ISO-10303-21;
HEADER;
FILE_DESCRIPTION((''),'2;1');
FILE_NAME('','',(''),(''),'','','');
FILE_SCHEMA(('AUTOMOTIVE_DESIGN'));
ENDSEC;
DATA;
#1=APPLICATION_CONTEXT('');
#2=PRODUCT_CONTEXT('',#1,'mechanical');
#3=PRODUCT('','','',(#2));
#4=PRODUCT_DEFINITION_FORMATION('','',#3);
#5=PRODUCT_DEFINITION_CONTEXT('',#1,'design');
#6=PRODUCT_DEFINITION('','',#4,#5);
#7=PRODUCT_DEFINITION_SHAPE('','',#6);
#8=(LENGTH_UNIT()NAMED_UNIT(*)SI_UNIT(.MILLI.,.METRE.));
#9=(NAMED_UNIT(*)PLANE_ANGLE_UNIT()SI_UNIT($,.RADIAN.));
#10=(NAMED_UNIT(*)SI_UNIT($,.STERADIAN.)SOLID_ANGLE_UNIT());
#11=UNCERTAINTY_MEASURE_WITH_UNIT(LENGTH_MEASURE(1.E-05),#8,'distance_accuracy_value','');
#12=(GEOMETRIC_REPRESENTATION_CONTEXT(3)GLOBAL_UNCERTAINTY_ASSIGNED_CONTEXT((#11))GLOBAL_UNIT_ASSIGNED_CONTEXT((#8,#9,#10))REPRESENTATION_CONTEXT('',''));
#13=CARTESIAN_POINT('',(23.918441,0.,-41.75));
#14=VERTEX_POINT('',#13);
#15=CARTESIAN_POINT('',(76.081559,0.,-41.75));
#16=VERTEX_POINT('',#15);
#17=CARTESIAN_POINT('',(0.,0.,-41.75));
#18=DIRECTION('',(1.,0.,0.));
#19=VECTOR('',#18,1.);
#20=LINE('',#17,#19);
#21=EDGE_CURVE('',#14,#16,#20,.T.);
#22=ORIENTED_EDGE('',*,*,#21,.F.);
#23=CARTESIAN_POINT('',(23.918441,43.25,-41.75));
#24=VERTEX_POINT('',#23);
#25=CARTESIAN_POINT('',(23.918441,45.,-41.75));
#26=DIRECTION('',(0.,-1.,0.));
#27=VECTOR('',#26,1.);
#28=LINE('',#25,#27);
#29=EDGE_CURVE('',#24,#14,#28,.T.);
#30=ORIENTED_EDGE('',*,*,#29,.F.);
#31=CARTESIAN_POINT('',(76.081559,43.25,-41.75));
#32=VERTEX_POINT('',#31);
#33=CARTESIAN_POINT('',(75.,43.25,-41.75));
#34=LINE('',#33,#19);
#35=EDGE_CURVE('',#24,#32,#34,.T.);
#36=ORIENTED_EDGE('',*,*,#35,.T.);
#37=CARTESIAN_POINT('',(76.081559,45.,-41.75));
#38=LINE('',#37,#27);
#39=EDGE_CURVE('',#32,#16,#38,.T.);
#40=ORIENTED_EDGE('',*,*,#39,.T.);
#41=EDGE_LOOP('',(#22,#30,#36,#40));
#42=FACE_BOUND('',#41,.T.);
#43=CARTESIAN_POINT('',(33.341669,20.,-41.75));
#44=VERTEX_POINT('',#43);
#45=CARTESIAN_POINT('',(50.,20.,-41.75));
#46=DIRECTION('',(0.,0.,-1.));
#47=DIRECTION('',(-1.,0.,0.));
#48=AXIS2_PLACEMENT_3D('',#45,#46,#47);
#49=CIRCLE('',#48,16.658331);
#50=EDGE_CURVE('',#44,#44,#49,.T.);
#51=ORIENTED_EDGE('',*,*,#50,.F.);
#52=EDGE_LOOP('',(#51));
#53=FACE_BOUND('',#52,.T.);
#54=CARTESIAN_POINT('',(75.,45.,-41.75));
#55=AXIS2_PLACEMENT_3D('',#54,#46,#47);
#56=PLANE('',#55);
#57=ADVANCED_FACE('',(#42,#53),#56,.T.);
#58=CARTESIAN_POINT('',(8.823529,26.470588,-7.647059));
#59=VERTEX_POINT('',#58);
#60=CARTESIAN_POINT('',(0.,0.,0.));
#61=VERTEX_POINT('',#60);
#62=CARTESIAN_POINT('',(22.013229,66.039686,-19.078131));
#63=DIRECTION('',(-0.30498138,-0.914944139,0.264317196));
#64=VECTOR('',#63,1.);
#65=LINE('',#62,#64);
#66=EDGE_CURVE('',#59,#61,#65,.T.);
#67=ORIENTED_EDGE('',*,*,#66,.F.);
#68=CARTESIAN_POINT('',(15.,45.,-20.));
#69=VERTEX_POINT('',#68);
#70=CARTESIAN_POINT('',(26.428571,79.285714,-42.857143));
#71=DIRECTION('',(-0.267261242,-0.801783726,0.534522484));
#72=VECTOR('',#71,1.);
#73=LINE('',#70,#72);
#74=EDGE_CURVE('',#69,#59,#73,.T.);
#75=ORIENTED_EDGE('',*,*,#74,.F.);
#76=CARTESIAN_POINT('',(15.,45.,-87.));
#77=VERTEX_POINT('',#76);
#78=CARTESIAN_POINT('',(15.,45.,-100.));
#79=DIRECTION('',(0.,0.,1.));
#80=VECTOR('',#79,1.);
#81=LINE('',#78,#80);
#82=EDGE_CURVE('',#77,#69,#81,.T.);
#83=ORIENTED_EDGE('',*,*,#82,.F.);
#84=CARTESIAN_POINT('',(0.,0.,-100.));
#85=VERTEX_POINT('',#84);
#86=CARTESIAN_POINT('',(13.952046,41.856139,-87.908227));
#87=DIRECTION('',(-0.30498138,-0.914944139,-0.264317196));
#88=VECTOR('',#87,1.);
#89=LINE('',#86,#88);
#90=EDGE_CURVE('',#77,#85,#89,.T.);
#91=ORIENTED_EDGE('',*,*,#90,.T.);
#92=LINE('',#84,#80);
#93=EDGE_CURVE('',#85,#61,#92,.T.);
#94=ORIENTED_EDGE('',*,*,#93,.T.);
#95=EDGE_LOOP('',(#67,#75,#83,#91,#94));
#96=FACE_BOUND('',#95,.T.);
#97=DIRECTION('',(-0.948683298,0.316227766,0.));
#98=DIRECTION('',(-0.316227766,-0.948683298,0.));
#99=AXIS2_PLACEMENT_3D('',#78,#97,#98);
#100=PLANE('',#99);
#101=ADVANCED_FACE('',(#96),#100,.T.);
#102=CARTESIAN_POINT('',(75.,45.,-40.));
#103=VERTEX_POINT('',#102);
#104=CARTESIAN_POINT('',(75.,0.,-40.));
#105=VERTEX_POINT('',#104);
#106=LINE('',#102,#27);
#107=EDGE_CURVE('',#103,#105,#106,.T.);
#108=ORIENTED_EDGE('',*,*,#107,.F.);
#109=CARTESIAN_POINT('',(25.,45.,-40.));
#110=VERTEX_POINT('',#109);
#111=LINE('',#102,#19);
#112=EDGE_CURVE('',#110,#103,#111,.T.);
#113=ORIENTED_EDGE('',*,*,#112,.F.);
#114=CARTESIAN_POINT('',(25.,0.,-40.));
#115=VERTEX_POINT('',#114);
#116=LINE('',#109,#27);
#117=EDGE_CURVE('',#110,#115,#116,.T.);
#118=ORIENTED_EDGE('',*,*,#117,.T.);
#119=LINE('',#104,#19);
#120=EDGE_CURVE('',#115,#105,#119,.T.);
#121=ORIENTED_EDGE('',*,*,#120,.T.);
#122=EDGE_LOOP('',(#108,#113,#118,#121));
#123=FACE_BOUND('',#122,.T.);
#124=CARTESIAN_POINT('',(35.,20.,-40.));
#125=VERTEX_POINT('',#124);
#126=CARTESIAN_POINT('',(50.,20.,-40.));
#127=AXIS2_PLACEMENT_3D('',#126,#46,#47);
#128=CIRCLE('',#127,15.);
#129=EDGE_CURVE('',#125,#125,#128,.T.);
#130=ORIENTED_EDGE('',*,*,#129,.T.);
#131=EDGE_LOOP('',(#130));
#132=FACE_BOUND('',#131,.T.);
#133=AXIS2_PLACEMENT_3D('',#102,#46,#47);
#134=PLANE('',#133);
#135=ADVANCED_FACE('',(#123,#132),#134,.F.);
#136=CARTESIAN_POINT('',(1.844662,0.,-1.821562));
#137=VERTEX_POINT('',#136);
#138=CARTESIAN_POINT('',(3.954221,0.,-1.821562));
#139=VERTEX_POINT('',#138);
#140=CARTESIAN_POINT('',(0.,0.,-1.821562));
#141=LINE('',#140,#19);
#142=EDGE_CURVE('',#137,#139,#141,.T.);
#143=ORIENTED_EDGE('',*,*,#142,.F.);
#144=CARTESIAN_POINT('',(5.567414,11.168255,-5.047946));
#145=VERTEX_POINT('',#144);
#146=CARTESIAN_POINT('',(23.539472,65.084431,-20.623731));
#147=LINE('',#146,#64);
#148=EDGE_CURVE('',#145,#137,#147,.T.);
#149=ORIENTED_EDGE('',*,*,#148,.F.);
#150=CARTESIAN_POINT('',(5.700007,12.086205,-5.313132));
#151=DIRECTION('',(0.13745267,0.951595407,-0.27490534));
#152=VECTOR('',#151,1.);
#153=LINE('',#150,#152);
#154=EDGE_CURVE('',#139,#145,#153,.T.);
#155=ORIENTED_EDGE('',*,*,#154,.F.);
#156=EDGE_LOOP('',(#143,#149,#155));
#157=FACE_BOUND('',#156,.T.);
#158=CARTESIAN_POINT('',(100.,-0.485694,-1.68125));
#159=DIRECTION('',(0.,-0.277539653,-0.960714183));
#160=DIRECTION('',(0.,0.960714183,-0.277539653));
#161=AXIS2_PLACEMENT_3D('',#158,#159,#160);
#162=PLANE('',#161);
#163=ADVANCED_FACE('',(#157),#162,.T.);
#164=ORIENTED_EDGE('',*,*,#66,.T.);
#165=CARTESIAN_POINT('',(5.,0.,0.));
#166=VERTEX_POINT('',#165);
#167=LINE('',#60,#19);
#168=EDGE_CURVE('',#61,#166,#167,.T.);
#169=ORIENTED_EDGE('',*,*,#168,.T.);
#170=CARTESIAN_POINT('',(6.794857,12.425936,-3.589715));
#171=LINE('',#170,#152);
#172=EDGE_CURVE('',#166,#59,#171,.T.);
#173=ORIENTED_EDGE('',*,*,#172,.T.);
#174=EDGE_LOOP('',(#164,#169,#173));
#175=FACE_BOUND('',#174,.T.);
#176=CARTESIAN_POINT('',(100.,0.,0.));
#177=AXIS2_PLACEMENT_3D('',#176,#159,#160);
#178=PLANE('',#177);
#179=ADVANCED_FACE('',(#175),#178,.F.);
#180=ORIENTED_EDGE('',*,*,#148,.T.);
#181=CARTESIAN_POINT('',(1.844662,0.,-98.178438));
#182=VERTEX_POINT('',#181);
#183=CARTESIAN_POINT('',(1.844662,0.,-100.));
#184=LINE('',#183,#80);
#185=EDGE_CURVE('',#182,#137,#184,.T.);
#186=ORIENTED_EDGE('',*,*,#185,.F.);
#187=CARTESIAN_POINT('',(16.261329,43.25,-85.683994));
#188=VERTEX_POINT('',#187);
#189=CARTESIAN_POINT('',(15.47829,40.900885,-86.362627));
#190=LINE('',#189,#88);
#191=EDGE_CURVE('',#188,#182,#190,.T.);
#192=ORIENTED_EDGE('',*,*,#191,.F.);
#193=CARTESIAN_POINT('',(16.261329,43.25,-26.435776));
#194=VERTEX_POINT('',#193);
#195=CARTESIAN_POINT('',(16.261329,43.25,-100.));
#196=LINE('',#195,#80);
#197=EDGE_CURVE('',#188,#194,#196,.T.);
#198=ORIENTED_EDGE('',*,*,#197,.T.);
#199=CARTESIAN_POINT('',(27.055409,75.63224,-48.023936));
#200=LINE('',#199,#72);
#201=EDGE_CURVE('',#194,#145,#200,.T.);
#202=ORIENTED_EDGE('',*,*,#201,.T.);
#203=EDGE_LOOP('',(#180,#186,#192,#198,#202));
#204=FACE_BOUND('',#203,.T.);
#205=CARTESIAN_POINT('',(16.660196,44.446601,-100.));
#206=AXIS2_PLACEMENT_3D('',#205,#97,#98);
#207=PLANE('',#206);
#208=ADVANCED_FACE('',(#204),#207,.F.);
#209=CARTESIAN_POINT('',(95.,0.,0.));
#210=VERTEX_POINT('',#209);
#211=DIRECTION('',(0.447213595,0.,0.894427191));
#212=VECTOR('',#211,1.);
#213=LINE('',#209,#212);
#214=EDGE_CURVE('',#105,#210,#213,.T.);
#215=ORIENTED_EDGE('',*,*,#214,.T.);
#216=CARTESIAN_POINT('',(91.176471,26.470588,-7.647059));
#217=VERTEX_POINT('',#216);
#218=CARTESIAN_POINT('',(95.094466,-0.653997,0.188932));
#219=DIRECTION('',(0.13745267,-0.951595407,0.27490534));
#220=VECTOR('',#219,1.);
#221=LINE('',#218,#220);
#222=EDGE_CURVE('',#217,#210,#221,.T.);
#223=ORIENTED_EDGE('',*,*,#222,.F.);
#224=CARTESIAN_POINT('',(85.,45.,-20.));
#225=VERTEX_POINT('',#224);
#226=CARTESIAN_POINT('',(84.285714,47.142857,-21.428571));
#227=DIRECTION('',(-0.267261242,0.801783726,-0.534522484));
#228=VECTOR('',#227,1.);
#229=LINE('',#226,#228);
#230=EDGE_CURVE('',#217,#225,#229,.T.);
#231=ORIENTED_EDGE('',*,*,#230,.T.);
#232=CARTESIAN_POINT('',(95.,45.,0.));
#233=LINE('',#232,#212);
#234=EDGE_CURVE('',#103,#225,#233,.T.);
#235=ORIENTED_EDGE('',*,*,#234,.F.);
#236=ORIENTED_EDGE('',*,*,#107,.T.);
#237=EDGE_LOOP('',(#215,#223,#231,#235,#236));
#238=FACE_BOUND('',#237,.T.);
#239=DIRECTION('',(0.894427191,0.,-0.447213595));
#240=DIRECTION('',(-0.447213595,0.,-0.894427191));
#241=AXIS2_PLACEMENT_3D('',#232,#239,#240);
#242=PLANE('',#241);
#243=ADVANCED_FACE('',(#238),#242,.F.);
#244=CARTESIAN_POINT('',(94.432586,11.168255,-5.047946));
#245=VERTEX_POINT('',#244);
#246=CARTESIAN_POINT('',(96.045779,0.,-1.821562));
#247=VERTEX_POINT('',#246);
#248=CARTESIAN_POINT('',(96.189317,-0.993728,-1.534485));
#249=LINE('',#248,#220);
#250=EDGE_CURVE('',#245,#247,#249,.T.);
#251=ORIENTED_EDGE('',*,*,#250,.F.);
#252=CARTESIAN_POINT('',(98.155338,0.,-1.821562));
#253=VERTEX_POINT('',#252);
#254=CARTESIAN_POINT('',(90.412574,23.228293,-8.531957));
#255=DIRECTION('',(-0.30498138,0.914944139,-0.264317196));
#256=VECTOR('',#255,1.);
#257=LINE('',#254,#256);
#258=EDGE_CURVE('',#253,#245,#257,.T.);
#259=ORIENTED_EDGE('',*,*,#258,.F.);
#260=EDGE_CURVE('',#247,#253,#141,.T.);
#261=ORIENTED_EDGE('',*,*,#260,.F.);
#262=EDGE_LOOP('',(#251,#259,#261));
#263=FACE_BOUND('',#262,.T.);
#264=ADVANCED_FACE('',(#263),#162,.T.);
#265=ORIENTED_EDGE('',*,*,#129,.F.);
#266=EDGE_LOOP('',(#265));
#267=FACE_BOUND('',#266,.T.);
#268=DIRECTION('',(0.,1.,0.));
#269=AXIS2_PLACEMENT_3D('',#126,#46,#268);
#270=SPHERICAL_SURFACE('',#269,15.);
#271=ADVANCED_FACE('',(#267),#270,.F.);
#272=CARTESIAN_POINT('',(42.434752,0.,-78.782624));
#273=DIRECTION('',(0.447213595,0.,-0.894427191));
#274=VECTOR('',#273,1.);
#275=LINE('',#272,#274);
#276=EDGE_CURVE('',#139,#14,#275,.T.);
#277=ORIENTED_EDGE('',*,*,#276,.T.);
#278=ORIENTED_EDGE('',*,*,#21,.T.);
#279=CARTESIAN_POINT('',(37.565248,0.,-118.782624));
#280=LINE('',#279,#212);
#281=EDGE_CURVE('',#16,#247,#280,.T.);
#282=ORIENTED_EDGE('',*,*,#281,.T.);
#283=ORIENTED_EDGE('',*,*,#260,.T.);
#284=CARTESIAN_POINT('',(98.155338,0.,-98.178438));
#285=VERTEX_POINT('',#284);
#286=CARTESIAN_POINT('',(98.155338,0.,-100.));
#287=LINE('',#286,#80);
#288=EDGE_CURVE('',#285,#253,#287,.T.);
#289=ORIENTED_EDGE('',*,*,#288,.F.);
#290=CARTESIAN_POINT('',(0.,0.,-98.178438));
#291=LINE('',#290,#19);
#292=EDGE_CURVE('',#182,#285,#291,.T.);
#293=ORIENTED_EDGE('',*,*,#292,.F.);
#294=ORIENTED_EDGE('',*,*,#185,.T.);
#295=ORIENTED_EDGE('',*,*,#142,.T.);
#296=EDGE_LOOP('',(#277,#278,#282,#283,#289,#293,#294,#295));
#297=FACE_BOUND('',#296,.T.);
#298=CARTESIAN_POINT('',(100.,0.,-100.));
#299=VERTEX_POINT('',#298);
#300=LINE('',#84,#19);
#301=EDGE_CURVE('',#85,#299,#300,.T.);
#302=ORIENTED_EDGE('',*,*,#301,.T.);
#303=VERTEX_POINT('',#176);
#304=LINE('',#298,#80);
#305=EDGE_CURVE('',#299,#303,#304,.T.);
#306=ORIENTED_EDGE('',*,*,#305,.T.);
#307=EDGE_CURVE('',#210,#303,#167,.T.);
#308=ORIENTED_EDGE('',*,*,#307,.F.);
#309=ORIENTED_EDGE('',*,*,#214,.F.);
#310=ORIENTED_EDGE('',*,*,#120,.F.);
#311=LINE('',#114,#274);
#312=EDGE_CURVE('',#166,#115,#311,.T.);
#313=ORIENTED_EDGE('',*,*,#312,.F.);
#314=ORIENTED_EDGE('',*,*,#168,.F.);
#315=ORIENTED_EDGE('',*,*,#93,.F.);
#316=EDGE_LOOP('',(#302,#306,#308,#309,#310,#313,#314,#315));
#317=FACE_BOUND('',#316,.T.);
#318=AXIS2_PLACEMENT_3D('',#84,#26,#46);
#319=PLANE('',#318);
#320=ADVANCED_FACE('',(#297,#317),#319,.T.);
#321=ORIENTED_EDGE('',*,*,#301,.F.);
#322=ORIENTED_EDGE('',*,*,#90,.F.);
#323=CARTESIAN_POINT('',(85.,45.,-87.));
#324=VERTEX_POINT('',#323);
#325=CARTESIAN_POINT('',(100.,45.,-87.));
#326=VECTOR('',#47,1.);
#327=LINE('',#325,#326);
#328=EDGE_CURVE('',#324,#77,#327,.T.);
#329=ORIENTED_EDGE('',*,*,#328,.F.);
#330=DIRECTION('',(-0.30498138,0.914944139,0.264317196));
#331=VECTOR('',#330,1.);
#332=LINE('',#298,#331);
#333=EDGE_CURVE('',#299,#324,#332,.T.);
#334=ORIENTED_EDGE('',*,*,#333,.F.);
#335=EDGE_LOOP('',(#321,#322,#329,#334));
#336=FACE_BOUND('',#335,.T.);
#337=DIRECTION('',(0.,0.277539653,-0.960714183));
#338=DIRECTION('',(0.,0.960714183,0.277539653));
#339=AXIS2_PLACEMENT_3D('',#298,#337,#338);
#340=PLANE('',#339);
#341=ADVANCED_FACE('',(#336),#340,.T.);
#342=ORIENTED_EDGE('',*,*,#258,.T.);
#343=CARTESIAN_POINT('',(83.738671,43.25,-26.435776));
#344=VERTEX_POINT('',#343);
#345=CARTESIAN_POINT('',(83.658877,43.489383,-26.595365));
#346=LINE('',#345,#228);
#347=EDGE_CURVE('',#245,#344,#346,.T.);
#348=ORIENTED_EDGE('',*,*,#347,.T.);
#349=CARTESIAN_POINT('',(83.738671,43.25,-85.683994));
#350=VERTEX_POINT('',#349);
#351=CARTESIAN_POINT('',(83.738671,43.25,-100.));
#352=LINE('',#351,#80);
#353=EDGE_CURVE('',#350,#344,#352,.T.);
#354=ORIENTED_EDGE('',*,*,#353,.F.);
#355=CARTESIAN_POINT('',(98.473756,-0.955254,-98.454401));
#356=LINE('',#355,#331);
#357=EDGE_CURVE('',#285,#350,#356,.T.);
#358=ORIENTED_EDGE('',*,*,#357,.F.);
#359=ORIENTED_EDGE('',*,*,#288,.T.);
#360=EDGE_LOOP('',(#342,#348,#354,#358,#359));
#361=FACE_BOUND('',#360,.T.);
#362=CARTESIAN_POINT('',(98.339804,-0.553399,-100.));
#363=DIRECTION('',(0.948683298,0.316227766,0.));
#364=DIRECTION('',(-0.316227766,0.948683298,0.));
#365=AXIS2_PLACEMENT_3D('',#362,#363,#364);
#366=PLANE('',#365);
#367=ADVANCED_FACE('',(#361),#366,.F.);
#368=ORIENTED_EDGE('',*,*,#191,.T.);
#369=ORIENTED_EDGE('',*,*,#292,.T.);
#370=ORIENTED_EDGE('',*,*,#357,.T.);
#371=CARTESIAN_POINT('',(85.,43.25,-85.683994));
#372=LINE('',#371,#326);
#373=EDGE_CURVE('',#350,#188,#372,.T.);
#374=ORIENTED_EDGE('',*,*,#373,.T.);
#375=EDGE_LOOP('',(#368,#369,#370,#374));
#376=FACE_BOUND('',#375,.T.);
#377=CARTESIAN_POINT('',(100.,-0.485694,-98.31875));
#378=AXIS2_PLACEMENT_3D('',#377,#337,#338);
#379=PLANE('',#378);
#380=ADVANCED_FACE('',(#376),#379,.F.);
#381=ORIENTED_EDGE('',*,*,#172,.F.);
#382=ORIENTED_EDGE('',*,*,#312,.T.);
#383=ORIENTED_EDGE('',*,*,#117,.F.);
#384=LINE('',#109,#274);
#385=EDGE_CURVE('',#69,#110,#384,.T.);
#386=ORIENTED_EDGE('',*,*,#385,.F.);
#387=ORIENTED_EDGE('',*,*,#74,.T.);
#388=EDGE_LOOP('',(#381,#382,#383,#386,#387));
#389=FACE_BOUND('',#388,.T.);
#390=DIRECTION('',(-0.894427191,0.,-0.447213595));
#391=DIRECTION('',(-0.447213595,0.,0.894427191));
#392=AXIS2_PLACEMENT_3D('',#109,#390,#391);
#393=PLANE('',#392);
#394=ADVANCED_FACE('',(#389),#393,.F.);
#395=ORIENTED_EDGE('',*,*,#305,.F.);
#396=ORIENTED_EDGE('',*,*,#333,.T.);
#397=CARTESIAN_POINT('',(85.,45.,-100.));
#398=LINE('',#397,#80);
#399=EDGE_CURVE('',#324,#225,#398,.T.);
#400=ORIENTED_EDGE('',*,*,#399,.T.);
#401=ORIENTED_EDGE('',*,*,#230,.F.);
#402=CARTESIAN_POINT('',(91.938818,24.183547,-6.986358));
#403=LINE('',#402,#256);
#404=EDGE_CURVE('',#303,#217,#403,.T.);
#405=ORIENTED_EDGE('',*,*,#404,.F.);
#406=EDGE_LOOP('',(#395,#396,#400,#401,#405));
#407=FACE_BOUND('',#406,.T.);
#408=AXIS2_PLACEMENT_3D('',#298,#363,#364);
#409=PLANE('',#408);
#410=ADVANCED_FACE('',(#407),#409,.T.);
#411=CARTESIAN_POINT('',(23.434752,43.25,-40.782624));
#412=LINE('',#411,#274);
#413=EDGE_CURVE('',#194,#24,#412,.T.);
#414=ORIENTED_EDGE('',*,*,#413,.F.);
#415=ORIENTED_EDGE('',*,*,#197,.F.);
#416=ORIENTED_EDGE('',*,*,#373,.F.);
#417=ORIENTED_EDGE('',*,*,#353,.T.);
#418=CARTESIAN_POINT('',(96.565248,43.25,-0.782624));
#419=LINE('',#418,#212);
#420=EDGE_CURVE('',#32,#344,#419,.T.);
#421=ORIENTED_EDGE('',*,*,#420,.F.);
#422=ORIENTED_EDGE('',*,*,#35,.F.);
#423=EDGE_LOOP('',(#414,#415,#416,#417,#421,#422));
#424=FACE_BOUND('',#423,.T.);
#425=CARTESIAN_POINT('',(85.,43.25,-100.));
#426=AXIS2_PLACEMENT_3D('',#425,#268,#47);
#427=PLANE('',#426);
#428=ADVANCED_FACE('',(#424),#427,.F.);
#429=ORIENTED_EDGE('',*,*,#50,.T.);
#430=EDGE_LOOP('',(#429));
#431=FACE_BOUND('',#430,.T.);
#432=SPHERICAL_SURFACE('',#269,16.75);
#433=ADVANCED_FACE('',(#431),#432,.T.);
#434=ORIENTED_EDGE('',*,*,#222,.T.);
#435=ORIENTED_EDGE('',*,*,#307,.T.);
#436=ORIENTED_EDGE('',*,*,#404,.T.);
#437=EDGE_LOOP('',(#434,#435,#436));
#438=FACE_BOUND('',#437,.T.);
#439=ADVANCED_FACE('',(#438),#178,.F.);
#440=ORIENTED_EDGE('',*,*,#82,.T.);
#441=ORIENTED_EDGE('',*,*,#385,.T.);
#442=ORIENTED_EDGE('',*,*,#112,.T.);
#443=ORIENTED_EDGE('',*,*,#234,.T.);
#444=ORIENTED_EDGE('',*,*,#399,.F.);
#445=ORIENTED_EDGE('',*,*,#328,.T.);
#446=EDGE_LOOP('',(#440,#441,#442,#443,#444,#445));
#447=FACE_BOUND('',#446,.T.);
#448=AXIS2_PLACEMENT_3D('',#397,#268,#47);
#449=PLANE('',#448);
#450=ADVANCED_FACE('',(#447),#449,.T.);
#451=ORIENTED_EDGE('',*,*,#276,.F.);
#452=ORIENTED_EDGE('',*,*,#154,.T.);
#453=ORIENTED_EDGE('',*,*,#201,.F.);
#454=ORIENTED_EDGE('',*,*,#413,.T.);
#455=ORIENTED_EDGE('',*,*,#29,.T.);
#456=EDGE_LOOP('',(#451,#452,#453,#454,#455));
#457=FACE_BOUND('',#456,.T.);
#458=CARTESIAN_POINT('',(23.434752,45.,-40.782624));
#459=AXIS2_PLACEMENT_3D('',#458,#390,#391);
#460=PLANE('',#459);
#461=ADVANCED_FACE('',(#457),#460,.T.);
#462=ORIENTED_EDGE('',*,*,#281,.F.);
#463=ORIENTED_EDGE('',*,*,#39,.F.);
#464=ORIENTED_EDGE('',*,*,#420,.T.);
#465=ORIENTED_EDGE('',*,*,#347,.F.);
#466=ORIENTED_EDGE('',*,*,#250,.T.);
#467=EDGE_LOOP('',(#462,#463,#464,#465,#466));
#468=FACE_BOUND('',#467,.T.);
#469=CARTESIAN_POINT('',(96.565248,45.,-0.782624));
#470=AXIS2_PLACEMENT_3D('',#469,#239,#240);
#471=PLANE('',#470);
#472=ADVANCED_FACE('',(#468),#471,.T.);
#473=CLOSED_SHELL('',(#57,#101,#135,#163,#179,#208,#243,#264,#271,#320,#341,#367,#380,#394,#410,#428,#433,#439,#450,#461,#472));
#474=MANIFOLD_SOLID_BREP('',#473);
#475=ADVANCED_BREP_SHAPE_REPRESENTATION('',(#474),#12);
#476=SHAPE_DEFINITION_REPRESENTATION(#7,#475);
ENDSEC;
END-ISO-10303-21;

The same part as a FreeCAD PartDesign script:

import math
import FreeCAD as App
import Part
import Sketcher

V = App.Vector


def faces_at(feature, points):
    """Names of the faces that lie closest to the given points."""
    faces = feature.Shape.Faces
    near = lambda p: min(range(len(faces)), key=lambda i: faces[i].distToShape(Part.Vertex(*p))[0])
    return sorted({f"Face{near(p) + 1}" for p in points})


def add_polygon(sketch, points):
    """Adds a closed chain of lines whose ends are joined by coincident constraints."""
    first, n = sketch.GeometryCount, len(points)
    for a, b in zip(points, points[1:] + points[:1]):
        sketch.addGeometry(Part.LineSegment(App.Vector(*a, 0), App.Vector(*b, 0)), False)
    for i in range(n):
        sketch.addConstraint(Sketcher.Constraint("Coincident", first + i, 2, first + (i + 1) % n, 1))

doc = App.newDocument("Part")
body = doc.addObject("PartDesign::Body", "Body")

sketch1 = body.newObject("Sketcher::SketchObject", "Sketch")
sketch1.AttachmentSupport = (doc.getObject("XY_Plane"), [""])
sketch1.MapMode = "FlatFace"
add_polygon(sketch1, [(0, 0), (100, 0), (85, 45), (15, 45)])
sketch1.addConstraint([
    Sketcher.Constraint("Horizontal", 0),
    Sketcher.Constraint("Horizontal", 2),
    Sketcher.Constraint("Coincident", 3, 2, -1, 1),
    Sketcher.Constraint("Equal", 1, 3),
    Sketcher.Constraint("DistanceX", 0, 1, 0, 2, 100.0),
    Sketcher.Constraint("DistanceX", 2, 2, 2, 1, 70.0),
    Sketcher.Constraint("DistanceY", -1, 1, 1, 2, 45.0),
])
pad1 = body.newObject("PartDesign::Pad", "Pad")
pad1.Profile = sketch1
pad1.Length = 100
pad1.Reversed = True

sketch2 = body.newObject("Sketcher::SketchObject", "Sketch001")
sketch2.AttachmentSupport = (doc.getObject("YZ_Plane"), [""])
sketch2.MapMode = "FlatFace"
add_polygon(sketch2, [(45, -87), (0, -100), (45, -100)])
sketch2.addConstraint([
    Sketcher.Constraint("Horizontal", 1),
    Sketcher.Constraint("Vertical", 2),
    Sketcher.Constraint("PointOnObject", 0, 2, -2),
    Sketcher.Constraint("DistanceX", 1, 1, 1, 2, 45.0),
    Sketcher.Constraint("DistanceY", 2, 1, 2, 2, 13.0),
    Sketcher.Constraint("DistanceY", 0, 2, -1, 1, 100.0),
])
pocket1 = body.newObject("PartDesign::Pocket", "Pocket")
pocket1.Profile = sketch2
pocket1.Length = 100
pocket1.Reversed = True
doc.recompute()

datumplane = body.newObject("PartDesign::Plane", "DatumPlane")
datumplane.AttachmentSupport = (doc.getObject("XY_Plane"), [""])
datumplane.MapMode = "FlatFace"
datumplane.AttachmentOffset = App.Placement(V(0, 0, -50), App.Rotation())
mirrored = body.newObject("PartDesign::Mirrored", "Mirrored")
mirrored.Originals = [pocket1]
mirrored.MirrorPlane = (datumplane, [""])
body.Tip = mirrored

sketch3 = body.newObject("Sketcher::SketchObject", "Sketch002")
sketch3.AttachmentSupport = (doc.getObject("XZ_Plane"), [""])
sketch3.MapMode = "FlatFace"
add_polygon(sketch3, [(95, 0), (5, 0), (25, -40), (75, -40)])
sketch3.addConstraint([
    Sketcher.Constraint("Horizontal", 0),
    Sketcher.Constraint("Horizontal", 2),
    Sketcher.Constraint("PointOnObject", 0, 2, -1),
    Sketcher.Constraint("Equal", 1, 3),
    Sketcher.Constraint("DistanceX", 0, 2, 0, 1, 90.0),
    Sketcher.Constraint("DistanceX", 2, 1, 2, 2, 50.0),
    Sketcher.Constraint("DistanceX", -1, 1, 0, 2, 5.0),
    Sketcher.Constraint("DistanceY", 1, 2, -1, 1, 40.0),
])
pocket2 = body.newObject("PartDesign::Pocket", "Pocket001")
pocket2.Profile = sketch3
pocket2.Length = 45

sketch4 = body.newObject("Sketcher::SketchObject", "Sketch003")
sketch4.AttachmentSupport = (doc.getObject("YZ_Plane"), [""])
sketch4.MapMode = "FlatFace"
sketch4.AttachmentOffset = App.Placement(V(0, 0, 50), App.Rotation())
sketch4.addGeometry([
    Part.LineSegment(V(20, -40, 0), V(20, -55, 0)),
    Part.ArcOfCircle(Part.Circle(V(20, -40, 0), V(0, 0, 1), 15), math.radians(180), math.radians(270)),
    Part.LineSegment(V(5, -40, 0), V(20, -40, 0)),
], False)
sketch4.addGeometry(Part.LineSegment(V(20, -55, 0), V(20, -40, 0)), True)
sketch4.addConstraint([
    Sketcher.Constraint("Coincident", 0, 2, 1, 2),
    Sketcher.Constraint("Coincident", 1, 1, 2, 1),
    Sketcher.Constraint("Coincident", 2, 2, 0, 1),
    Sketcher.Constraint("Vertical", 0),
    Sketcher.Constraint("Horizontal", 2),
    Sketcher.Constraint("Vertical", 3),
    Sketcher.Constraint("Coincident", 2, 2, 1, 3),
    Sketcher.Constraint("Coincident", 3, 1, 0, 2),
    Sketcher.Constraint("Horizontal", 1, 1, 3, 2),
    Sketcher.Constraint("Radius", 1, 15.0),
    Sketcher.Constraint("DistanceX", -1, 1, 1, 3, 20.0),
    Sketcher.Constraint("DistanceY", 1, 3, -1, 1, 40.0),
])
groove = body.newObject("PartDesign::Groove", "Groove")
groove.Profile = sketch4
groove.ReferenceAxis = (sketch4, ["Axis0"])
groove.Angle = 360
doc.recompute()

thickness = body.newObject("PartDesign::Thickness", "Thickness")
thickness.Base = (groove, faces_at(groove, [(50, 0, -50)]))
thickness.Value = 1.75
thickness.Reversed = True
thickness.Join = "Intersection"

doc.recompute()
